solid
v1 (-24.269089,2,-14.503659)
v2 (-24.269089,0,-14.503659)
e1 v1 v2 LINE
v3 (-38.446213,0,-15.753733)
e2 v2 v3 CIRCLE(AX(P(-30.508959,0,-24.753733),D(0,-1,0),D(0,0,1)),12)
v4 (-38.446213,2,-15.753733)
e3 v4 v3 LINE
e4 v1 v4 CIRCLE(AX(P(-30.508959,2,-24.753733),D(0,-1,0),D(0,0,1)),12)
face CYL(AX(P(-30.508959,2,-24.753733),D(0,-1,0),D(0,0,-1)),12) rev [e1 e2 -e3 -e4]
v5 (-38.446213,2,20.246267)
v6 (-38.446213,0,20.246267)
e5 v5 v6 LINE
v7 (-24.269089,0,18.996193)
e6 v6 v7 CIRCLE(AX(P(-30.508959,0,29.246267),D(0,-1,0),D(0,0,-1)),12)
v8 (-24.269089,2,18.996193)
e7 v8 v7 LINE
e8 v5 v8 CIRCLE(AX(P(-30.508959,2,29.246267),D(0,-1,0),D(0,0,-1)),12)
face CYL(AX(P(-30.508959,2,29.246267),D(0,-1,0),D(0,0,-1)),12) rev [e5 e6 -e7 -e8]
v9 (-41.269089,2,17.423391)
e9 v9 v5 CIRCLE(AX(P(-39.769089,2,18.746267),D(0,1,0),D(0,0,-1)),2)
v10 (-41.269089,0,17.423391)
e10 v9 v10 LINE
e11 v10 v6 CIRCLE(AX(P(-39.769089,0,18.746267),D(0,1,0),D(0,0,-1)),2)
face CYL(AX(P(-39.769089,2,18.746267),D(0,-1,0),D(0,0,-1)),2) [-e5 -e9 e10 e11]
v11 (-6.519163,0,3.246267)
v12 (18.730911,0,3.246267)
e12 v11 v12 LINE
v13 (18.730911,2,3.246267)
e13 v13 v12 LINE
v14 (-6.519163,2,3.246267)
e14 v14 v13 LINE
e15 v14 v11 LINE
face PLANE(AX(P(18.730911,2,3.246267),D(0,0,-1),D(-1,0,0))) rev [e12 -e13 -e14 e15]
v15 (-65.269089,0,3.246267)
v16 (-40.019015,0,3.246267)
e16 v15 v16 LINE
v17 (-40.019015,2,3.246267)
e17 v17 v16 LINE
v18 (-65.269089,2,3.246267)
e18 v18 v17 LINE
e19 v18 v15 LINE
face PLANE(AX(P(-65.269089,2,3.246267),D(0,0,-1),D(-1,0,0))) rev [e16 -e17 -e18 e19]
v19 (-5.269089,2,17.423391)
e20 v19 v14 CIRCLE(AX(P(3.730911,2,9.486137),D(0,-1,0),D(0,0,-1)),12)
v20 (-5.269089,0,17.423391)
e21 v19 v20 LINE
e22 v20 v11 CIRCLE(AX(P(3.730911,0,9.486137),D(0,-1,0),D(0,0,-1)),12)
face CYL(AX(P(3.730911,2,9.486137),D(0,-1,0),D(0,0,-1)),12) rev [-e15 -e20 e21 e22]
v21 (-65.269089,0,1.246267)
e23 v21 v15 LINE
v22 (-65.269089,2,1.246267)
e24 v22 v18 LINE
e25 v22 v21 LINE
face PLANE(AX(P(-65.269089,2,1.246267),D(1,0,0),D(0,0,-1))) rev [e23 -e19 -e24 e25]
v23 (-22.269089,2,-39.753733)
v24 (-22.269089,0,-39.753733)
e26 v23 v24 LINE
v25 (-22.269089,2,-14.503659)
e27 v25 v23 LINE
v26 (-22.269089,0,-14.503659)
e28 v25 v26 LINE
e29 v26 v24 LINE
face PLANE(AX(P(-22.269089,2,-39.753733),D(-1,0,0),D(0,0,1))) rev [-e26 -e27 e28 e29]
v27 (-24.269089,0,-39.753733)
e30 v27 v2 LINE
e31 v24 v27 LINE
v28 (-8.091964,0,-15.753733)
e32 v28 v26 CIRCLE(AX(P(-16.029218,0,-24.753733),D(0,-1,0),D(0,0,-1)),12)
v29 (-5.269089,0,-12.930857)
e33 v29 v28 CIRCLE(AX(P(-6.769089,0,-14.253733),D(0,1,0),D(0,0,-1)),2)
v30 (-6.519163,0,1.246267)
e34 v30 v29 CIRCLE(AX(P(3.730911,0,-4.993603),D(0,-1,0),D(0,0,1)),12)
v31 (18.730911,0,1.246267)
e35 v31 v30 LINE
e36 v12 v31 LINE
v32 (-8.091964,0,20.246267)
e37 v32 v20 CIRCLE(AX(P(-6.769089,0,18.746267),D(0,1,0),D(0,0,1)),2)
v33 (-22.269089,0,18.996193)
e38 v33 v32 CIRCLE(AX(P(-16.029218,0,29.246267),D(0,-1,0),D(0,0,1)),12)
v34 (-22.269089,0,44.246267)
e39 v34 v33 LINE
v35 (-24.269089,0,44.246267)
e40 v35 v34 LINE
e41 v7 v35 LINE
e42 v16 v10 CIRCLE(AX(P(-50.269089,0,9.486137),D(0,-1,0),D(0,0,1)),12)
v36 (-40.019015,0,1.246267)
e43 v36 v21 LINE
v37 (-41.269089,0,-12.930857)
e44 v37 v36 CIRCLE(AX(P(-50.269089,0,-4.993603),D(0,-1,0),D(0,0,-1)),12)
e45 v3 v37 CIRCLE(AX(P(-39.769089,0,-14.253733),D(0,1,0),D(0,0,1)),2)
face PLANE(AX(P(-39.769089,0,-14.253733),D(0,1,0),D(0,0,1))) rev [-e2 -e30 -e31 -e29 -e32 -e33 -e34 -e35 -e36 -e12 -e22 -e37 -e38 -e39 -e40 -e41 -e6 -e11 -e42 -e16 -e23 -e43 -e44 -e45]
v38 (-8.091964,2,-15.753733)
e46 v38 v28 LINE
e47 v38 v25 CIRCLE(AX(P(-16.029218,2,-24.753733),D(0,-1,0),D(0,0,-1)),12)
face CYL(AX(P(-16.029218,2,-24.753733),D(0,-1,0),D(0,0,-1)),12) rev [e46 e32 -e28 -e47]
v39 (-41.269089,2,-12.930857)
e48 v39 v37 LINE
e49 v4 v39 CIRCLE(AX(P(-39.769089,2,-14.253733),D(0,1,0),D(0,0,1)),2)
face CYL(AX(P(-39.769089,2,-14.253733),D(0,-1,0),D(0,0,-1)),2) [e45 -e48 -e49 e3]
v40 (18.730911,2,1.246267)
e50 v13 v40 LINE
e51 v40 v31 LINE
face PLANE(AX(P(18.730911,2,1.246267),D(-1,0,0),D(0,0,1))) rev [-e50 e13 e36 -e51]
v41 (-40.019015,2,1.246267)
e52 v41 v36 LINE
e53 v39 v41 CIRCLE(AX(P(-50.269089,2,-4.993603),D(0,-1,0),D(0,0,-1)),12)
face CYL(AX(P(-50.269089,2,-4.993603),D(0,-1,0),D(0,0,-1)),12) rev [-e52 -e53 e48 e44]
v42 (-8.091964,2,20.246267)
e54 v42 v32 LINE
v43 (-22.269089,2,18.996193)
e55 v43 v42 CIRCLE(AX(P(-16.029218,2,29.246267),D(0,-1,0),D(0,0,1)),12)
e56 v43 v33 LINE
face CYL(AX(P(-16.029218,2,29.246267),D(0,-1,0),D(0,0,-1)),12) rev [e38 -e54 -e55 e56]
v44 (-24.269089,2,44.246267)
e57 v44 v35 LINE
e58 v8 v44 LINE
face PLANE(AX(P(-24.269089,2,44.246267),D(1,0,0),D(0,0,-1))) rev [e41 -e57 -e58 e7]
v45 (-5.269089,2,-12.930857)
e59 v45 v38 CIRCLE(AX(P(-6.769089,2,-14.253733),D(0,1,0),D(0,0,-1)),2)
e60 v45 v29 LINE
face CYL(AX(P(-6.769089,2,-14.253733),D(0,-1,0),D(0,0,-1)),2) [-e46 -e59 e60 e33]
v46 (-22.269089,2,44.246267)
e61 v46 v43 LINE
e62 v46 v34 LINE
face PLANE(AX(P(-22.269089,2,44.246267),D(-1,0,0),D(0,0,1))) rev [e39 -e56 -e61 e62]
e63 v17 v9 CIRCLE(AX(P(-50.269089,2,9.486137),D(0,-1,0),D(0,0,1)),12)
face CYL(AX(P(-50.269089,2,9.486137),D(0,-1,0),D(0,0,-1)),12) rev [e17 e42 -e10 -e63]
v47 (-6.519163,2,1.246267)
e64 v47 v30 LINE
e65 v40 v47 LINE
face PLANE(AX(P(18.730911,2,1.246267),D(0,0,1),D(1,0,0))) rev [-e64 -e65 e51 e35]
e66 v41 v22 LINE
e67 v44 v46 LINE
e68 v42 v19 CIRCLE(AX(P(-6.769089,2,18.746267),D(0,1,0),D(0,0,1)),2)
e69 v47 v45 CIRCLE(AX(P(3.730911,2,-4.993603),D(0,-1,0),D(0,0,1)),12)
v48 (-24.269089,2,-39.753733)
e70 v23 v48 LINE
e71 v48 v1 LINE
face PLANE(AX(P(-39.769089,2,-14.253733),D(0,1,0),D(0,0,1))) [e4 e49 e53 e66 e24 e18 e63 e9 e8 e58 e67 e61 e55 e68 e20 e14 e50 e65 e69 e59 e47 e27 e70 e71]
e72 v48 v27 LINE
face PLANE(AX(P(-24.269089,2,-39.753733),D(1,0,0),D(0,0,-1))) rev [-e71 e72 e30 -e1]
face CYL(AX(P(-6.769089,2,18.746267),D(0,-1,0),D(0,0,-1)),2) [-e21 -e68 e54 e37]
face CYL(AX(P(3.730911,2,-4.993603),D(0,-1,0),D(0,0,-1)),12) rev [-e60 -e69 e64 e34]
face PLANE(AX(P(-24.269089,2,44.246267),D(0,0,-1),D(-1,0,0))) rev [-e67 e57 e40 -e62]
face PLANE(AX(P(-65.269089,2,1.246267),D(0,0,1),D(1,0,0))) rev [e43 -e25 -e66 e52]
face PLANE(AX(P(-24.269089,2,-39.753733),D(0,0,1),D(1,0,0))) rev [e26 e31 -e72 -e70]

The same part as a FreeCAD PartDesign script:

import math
import FreeCAD as App
import Part
import Sketcher
from FreeCAD import Vector
Q = App.Units.Quantity

doc = App.newDocument("Part")
body = doc.addObject("PartDesign::Body", "Body")

sketch1 = body.newObject("Sketcher::SketchObject", "Sketch")
sketch1.AttachmentSupport = (doc.getObject("XZ_Plane"), [""])
sketch1.MapMode = "FlatFace"
sketch1.addGeometry(Part.LineSegment(Vector(-65.3, 1.2, 0), Vector(-65.3, 3.2, 0)), False)
sketch1.addGeometry(Part.LineSegment(Vector(-65.3, 3.2, 0), Vector(-40, 3.2, 0)), False)
sketch1.addGeometry(Part.ArcOfCircle(Part.Circle(Vector(-50.3, 9.5, 0), Vector(0, 0, 1), 12), math.radians(-31), math.radians(41)), False)
sketch1.addGeometry(Part.ArcOfCircle(Part.Circle(Vector(-39.8, 18.7, 0), Vector(0, 0, 1), 2), math.radians(49), math.radians(221)), False)
sketch1.addGeometry(Part.ArcOfCircle(Part.Circle(Vector(-30.5, 29.2, 0), Vector(0, 0, 1), 12), math.radians(-131), math.radians(-59)), False)
sketch1.addGeometry(Part.LineSegment(Vector(-24.3, 19, 0), Vector(-24.3, 44.2, 0)), False)
sketch1.addGeometry(Part.LineSegment(Vector(-24.3, 44.2, 0), Vector(-22.3, 44.2, 0)), False)
sketch1.addGeometry(Part.LineSegment(Vector(-22.3, 44.2, 0), Vector(-22.3, 19, 0)), False)
sketch1.addGeometry(Part.ArcOfCircle(Part.Circle(Vector(-16, 29.2, 0), Vector(0, 0, 1), 12), math.radians(-121), math.radians(-49)), False)
sketch1.addGeometry(Part.ArcOfCircle(Part.Circle(Vector(-6.8, 18.7, 0), Vector(0, 0, 1), 2), math.radians(-41), math.radians(131)), False)
sketch1.addGeometry(Part.ArcOfCircle(Part.Circle(Vector(3.7, 9.5, 0), Vector(0, 0, 1), 12), math.radians(139), math.radians(211)), False)
sketch1.addGeometry(Part.LineSegment(Vector(-6.5, 3.2, 0), Vector(18.7, 3.2, 0)), False)
sketch1.addGeometry(Part.LineSegment(Vector(18.7, 3.2, 0), Vector(18.7, 1.2, 0)), False)
sketch1.addGeometry(Part.LineSegment(Vector(18.7, 1.2, 0), Vector(-6.5, 1.2, 0)), False)
sketch1.addGeometry(Part.ArcOfCircle(Part.Circle(Vector(3.7, -5, 0), Vector(0, 0, 1), 12), math.radians(149), math.radians(221)), False)
sketch1.addGeometry(Part.ArcOfCircle(Part.Circle(Vector(-6.8, -14.3, 0), Vector(0, 0, 1), 2), math.radians(-131), math.radians(41)), False)
sketch1.addGeometry(Part.ArcOfCircle(Part.Circle(Vector(-16, -24.8, 0), Vector(0, 0, 1), 12), math.radians(49), math.radians(121)), False)
sketch1.addGeometry(Part.LineSegment(Vector(-22.3, -14.5, 0), Vector(-22.3, -39.8, 0)), False)
sketch1.addGeometry(Part.LineSegment(Vector(-22.3, -39.8, 0), Vector(-24.3, -39.8, 0)), False)
sketch1.addGeometry(Part.LineSegment(Vector(-24.3, -39.8, 0), Vector(-24.3, -14.5, 0)), False)
sketch1.addGeometry(Part.ArcOfCircle(Part.Circle(Vector(-30.5, -24.8, 0), Vector(0, 0, 1), 12), math.radians(59), math.radians(131)), False)
sketch1.addGeometry(Part.ArcOfCircle(Part.Circle(Vector(-39.8, -14.3, 0), Vector(0, 0, 1), 2), math.radians(139), math.radians(311)), False)
sketch1.addGeometry(Part.ArcOfCircle(Part.Circle(Vector(-50.3, -5, 0), Vector(0, 0, 1), 12), math.radians(-41), math.radians(31)), False)
sketch1.addGeometry(Part.LineSegment(Vector(-40, 1.2, 0), Vector(-65.3, 1.2, 0)), False)
sketch1.addConstraint(Sketcher.Constraint("Coincident", 0, 2, 1, 1))
sketch1.addConstraint(Sketcher.Constraint("Coincident", 1, 2, 2, 1))
sketch1.addConstraint(Sketcher.Constraint("Tangent", 2, 2, 3, 2))
sketch1.addConstraint(Sketcher.Constraint("Tangent", 3, 1, 4, 1))
sketch1.addConstraint(Sketcher.Constraint("Coincident", 4, 2, 5, 1))
sketch1.addConstraint(Sketcher.Constraint("Coincident", 5, 2, 6, 1))
sketch1.addConstraint(Sketcher.Constraint("Coincident", 6, 2, 7, 1))
sketch1.addConstraint(Sketcher.Constraint("Coincident", 7, 2, 8, 1))
sketch1.addConstraint(Sketcher.Constraint("Tangent", 8, 2, 9, 2))
sketch1.addConstraint(Sketcher.Constraint("Tangent", 9, 1, 10, 1))
sketch1.addConstraint(Sketcher.Constraint("Coincident", 10, 2, 11, 1))
sketch1.addConstraint(Sketcher.Constraint("Coincident", 11, 2, 12, 1))
sketch1.addConstraint(Sketcher.Constraint("Coincident", 12, 2, 13, 1))
sketch1.addConstraint(Sketcher.Constraint("Coincident", 13, 2, 14, 1))
sketch1.addConstraint(Sketcher.Constraint("Tangent", 14, 2, 15, 2))
sketch1.addConstraint(Sketcher.Constraint("Tangent", 15, 1, 16, 1))
sketch1.addConstraint(Sketcher.Constraint("Coincident", 16, 2, 17, 1))
sketch1.addConstraint(Sketcher.Constraint("Coincident", 17, 2, 18, 1))
sketch1.addConstraint(Sketcher.Constraint("Coincident", 18, 2, 19, 1))
sketch1.addConstraint(Sketcher.Constraint("Coincident", 19, 2, 20, 1))
sketch1.addConstraint(Sketcher.Constraint("Tangent", 20, 2, 21, 2))
sketch1.addConstraint(Sketcher.Constraint("Tangent", 21, 1, 22, 1))
sketch1.addConstraint(Sketcher.Constraint("Coincident", 22, 2, 23, 1))
sketch1.addConstraint(Sketcher.Constraint("Coincident", 23, 2, 0, 1))
sketch1.addConstraint(Sketcher.Constraint("Vertical", 0))
sketch1.addConstraint(Sketcher.Constraint("Horizontal", 1))
sketch1.addConstraint(Sketcher.Constraint("Vertical", 5))
sketch1.addConstraint(Sketcher.Constraint("Horizontal", 6))
sketch1.addConstraint(Sketcher.Constraint("Vertical", 7))
sketch1.addConstraint(Sketcher.Constraint("Horizontal", 11))
sketch1.addConstraint(Sketcher.Constraint("Vertical", 12))
sketch1.addConstraint(Sketcher.Constraint("Horizontal", 13))
sketch1.addConstraint(Sketcher.Constraint("Vertical", 17))
sketch1.addConstraint(Sketcher.Constraint("Horizontal", 18))
sketch1.addConstraint(Sketcher.Constraint("Vertical", 19))
sketch1.addConstraint(Sketcher.Constraint("Horizontal", 23))
sketch1.addConstraint(Sketcher.Constraint("Equal", 2, 4))
sketch1.addConstraint(Sketcher.Constraint("Equal", 4, 8))
sketch1.addConstraint(Sketcher.Constraint("Equal", 3, 9))
sketch1.addConstraint(Sketcher.Constraint("Equal", 8, 10))
sketch1.addConstraint(Sketcher.Constraint("Equal", 10, 14))
sketch1.addConstraint(Sketcher.Constraint("Equal", 9, 15))
sketch1.addConstraint(Sketcher.Constraint("Equal", 14, 16))
sketch1.addConstraint(Sketcher.Constraint("Equal", 16, 20))
sketch1.addConstraint(Sketcher.Constraint("Equal", 15, 21))
sketch1.addConstraint(Sketcher.Constraint("Equal", 20, 22))
sketch1.addConstraint(Sketcher.Constraint("Horizontal", 4, 3, 8, 3))
sketch1.addConstraint(Sketcher.Constraint("Horizontal", 3, 3, 9, 3))
sketch1.addConstraint(Sketcher.Constraint("Horizontal", 2, 3, 10, 3))
sketch1.addConstraint(Sketcher.Constraint("Horizontal", 16, 3, 20, 3))
sketch1.addConstraint(Sketcher.Constraint("Horizontal", 15, 3, 21, 3))
sketch1.addConstraint(Sketcher.Constraint("Horizontal", 14, 3, 22, 3))
sketch1.addConstraint(Sketcher.Constraint("Horizontal", 4, 2, 7, 2))
sketch1.addConstraint(Sketcher.Constraint("Horizontal", 1, 2, 10, 2))
sketch1.addConstraint(Sketcher.Constraint("Horizontal", 16, 2, 19, 2))
sketch1.addConstraint(Sketcher.Constraint("Horizontal", 13, 2, 22, 2))
sketch1.addConstraint(Sketcher.Constraint("Vertical", 10, 3, 14, 3))
sketch1.addConstraint(Sketcher.Constraint("Vertical", 9, 3, 15, 3))
sketch1.addConstraint(Sketcher.Constraint("Vertical", 8, 3, 16, 3))
sketch1.addConstraint(Sketcher.Constraint("Vertical", 4, 3, 20, 3))
sketch1.addConstraint(Sketcher.Constraint("Vertical", 10, 2, 13, 2))
sketch1.addConstraint(Sketcher.Constraint("Vertical", 7, 2, 16, 2))
sketch1.addConstraint(Sketcher.Constraint("Equal", 1, 11))
sketch1.addConstraint(Sketcher.Constraint("Equal", 18, 0))
sketch1.addConstraint(Sketcher.Constraint("Equal", 23, 5))
sketch1.addConstraint(Sketcher.Constraint("Equal", 7, 17))
sketch1.addConstraint(Sketcher.Constraint("Radius", 2, Q("12 mm")))
sketch1.addConstraint(Sketcher.Constraint("Radius", 3, Q("2 mm")))
sketch1.addConstraint(Sketcher.Constraint("DistanceX", 6, 1, 6, 2, Q("2 mm")))
sketch1.addConstraint(Sketcher.Constraint("DistanceX", 3, 3, 9, 3, Q("33 mm")))
sketch1.addConstraint(Sketcher.Constraint("DistanceX", 2, 3, 10, 3, Q("54 mm")))
sketch1.addConstraint(Sketcher.Constraint("DistanceY", 15, 3, 9, 3, Q("33 mm")))
sketch1.addConstraint(Sketcher.Constraint("DistanceX", 0, 2, 2, 3, Q("15 mm")))
sketch1.addConstraint(Sketcher.Constraint("DistanceY", 0, 2, 4, 3, Q("26 mm")))
sketch1.addConstraint(Sketcher.Constraint("DistanceX", 2, 3, -1, 1, Q("50.269089 mm")))
sketch1.addConstraint(Sketcher.Constraint("DistanceY", -1, 1, 2, 2, Q("17.423391 mm")))
pad1 = body.newObject("PartDesign::Pad", "Pad")
pad1.Profile = sketch1
pad1.Length = 2
pad1.Reversed = True

doc.recompute()
